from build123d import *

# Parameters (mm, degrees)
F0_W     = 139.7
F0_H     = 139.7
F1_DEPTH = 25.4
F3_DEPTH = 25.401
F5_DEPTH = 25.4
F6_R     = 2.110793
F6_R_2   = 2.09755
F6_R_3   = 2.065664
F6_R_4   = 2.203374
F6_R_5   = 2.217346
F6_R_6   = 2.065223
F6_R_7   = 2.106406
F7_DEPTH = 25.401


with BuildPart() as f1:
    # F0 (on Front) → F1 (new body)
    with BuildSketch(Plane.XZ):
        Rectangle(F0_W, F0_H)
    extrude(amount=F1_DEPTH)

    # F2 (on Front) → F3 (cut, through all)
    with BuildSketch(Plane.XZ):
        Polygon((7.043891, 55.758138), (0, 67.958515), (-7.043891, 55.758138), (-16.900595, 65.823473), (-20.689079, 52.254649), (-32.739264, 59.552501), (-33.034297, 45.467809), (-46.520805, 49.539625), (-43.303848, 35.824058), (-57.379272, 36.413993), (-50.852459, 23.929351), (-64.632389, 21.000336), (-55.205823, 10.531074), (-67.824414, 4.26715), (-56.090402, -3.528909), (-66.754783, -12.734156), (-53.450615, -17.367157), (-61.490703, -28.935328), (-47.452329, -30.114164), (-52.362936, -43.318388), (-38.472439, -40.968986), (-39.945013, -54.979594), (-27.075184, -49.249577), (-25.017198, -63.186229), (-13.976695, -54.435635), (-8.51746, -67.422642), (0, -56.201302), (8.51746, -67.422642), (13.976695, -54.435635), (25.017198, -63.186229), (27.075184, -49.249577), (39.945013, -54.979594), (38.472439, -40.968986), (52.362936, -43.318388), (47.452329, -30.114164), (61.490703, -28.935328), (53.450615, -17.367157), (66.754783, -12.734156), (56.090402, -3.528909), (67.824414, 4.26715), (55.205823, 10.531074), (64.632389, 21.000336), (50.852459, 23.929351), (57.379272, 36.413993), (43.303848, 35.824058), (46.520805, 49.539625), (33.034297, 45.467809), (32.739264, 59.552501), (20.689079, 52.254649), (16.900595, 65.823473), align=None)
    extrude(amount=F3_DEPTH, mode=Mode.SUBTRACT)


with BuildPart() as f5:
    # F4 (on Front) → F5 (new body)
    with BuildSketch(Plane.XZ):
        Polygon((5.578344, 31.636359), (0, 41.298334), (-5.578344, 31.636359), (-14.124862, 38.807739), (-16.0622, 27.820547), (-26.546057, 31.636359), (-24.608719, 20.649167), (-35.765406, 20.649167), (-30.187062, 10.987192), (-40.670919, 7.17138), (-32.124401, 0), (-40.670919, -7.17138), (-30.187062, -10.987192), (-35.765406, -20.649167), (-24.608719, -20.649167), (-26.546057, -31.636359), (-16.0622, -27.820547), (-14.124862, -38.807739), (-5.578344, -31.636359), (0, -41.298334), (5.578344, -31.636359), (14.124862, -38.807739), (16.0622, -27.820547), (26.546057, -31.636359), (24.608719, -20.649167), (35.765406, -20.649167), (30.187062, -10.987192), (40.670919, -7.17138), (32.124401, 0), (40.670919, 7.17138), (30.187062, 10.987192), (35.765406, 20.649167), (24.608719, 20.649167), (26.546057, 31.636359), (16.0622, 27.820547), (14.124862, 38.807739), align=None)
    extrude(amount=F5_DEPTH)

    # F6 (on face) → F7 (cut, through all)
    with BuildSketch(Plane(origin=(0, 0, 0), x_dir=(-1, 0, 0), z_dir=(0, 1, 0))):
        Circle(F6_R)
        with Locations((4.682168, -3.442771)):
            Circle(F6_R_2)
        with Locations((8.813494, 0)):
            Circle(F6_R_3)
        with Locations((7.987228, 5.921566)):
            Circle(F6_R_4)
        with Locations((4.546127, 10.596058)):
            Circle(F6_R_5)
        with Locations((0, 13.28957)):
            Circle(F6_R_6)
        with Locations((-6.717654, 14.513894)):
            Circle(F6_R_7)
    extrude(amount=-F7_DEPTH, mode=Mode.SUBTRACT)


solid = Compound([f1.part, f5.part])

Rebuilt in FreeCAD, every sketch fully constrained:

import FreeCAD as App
import Part
import Sketcher
Q = App.Units.Quantity


def add_polygon(sketch, points):
    """Adds a closed chain of lines whose ends are joined by coincident constraints."""
    first, n = sketch.GeometryCount, len(points)
    for a, b in zip(points, points[1:] + points[:1]):
        sketch.addGeometry(Part.LineSegment(App.Vector(*a, 0), App.Vector(*b, 0)), False)
    for i in range(n):
        sketch.addConstraint(Sketcher.Constraint("Coincident", first + i, 2, first + (i + 1) % n, 1))

doc = App.newDocument("Part")
params = doc.addObject("Spreadsheet::Sheet", "Params")
for row, (alias, value) in enumerate([
    ("sketch1_width", "5.5 in"),
    ("pad1_length", "1 in"),
    ("pad2_length", "1 in"),
], start=1):
    params.set(f"A{row}", alias)
    params.set(f"B{row}", "=" + value)
    params.setAlias(f"B{row}", alias)

body = doc.addObject("PartDesign::Body", "Body")

sketch1 = body.newObject("Sketcher::SketchObject", "Sketch")
sketch1.AttachmentSupport = (doc.getObject("XZ_Plane"), [""])
sketch1.MapMode = "FlatFace"
add_polygon(sketch1, [(-70, 70), (-70, -70), (70, -70), (70, 70)])
sketch1.addConstraint(Sketcher.Constraint("Vertical", 0))
sketch1.addConstraint(Sketcher.Constraint("Horizontal", 1))
sketch1.addConstraint(Sketcher.Constraint("Vertical", 2))
sketch1.addConstraint(Sketcher.Constraint("Horizontal", 3))
sketch1.addConstraint(Sketcher.Constraint("Symmetric", 0, 2, 2, 2, -1, 1))
sketch1.addConstraint(Sketcher.Constraint("Equal", 3, 0))
sketch1.addConstraint(Sketcher.Constraint("DistanceX", 1, 1, 1, 2, Q("5.5 in")))
sketch1.setExpression("Constraints[10]", "Params.sketch1_width")
pad1 = body.newObject("PartDesign::Pad", "Pad")
pad1.Profile = sketch1
pad1.setExpression("Length", "Params.pad1_length")

sketch2 = body.newObject("Sketcher::SketchObject", "Sketch001")
sketch2.AttachmentSupport = (doc.getObject("XZ_Plane"), [""])
sketch2.MapMode = "FlatFace"
add_polygon(sketch2, [(7, 56), (0, 68), (-7, 56), (-17, 66), (-21, 52), (-33, 60), (-33, 45), (-47, 50), (-43, 36), (-57, 36), (-51, 24), (-65, 21), (-55, 11), (-68, 4), (-56, -4), (-67, -13), (-53, -17), (-61, -29), (-47, -30), (-52, -43), (-38, -41), (-40, -55), (-27, -49), (-25, -63), (-14, -54), (-9, -67), (0, -56), (9, -67), (14, -54), (25, -63), (27, -49), (40, -55), (38, -41), (52, -43), (47, -30), (61, -29), (53, -17), (67, -13), (56, -4), (68, 4), (55, 11), (65, 21), (51, 24), (57, 36), (43, 36), (47, 50), (33, 45), (33, 60), (21, 52), (17, 66)])
sketch2.addConstraint(Sketcher.Constraint("Symmetric", 24, 2, 26, 2, -2))
sketch2.addConstraint(Sketcher.Constraint("Symmetric", 23, 2, 27, 2, -2))
sketch2.addConstraint(Sketcher.Constraint("Symmetric", 22, 2, 28, 2, -2))
sketch2.addConstraint(Sketcher.Constraint("Symmetric", 21, 2, 29, 2, -2))
sketch2.addConstraint(Sketcher.Constraint("Symmetric", 20, 2, 30, 2, -2))
sketch2.addConstraint(Sketcher.Constraint("Symmetric", 19, 2, 31, 2, -2))
sketch2.addConstraint(Sketcher.Constraint("Symmetric", 18, 2, 32, 2, -2))
sketch2.addConstraint(Sketcher.Constraint("Symmetric", 17, 2, 33, 2, -2))
sketch2.addConstraint(Sketcher.Constraint("Symmetric", 16, 2, 34, 2, -2))
sketch2.addConstraint(Sketcher.Constraint("Symmetric", 15, 2, 35, 2, -2))
sketch2.addConstraint(Sketcher.Constraint("Symmetric", 14, 2, 36, 2, -2))
sketch2.addConstraint(Sketcher.Constraint("Symmetric", 13, 2, 37, 2, -2))
sketch2.addConstraint(Sketcher.Constraint("Symmetric", 12, 2, 38, 2, -2))
sketch2.addConstraint(Sketcher.Constraint("Symmetric", 11, 2, 39, 2, -2))
sketch2.addConstraint(Sketcher.Constraint("Symmetric", 10, 2, 40, 2, -2))
sketch2.addConstraint(Sketcher.Constraint("Symmetric", 9, 2, 41, 2, -2))
sketch2.addConstraint(Sketcher.Constraint("Symmetric", 8, 2, 42, 2, -2))
sketch2.addConstraint(Sketcher.Constraint("Symmetric", 7, 2, 43, 2, -2))
sketch2.addConstraint(Sketcher.Constraint("Symmetric", 6, 2, 44, 2, -2))
sketch2.addConstraint(Sketcher.Constraint("Symmetric", 5, 2, 45, 2, -2))
sketch2.addConstraint(Sketcher.Constraint("Symmetric", 4, 2, 46, 2, -2))
sketch2.addConstraint(Sketcher.Constraint("Symmetric", 3, 2, 47, 2, -2))
sketch2.addConstraint(Sketcher.Constraint("Symmetric", 2, 2, 48, 2, -2))
sketch2.addConstraint(Sketcher.Constraint("Symmetric", 1, 2, 49, 2, -2))
sketch2.addConstraint(Sketcher.Constraint("PointOnObject", 0, 2, -2))
sketch2.addConstraint(Sketcher.Constraint("PointOnObject", 25, 2, -2))
sketch2.addConstraint(Sketcher.Constraint("Equal", 1, 2))
sketch2.addConstraint(Sketcher.Constraint("Equal", 2, 3))
sketch2.addConstraint(Sketcher.Constraint("Equal", 3, 4))
sketch2.addConstraint(Sketcher.Constraint("Equal", 4, 5))
sketch2.addConstraint(Sketcher.Constraint("Equal", 5, 6))
sketch2.addConstraint(Sketcher.Constraint("Equal", 6, 7))
sketch2.addConstraint(Sketcher.Constraint("Equal", 7, 8))
sketch2.addConstraint(Sketcher.Constraint("Equal", 8, 9))
sketch2.addConstraint(Sketcher.Constraint("Equal", 9, 10))
sketch2.addConstraint(Sketcher.Constraint("Equal", 10, 11))
sketch2.addConstraint(Sketcher.Constraint("Equal", 11, 12))
sketch2.addConstraint(Sketcher.Constraint("Equal", 12, 13))
sketch2.addConstraint(Sketcher.Constraint("Equal", 13, 14))
sketch2.addConstraint(Sketcher.Constraint("Equal", 14, 15))
sketch2.addConstraint(Sketcher.Constraint("Equal", 15, 16))
sketch2.addConstraint(Sketcher.Constraint("Equal", 16, 17))
sketch2.addConstraint(Sketcher.Constraint("Equal", 17, 18))
sketch2.addConstraint(Sketcher.Constraint("Equal", 18, 19))
sketch2.addConstraint(Sketcher.Constraint("Equal", 19, 20))
sketch2.addConstraint(Sketcher.Constraint("Equal", 20, 21))
sketch2.addConstraint(Sketcher.Constraint("Equal", 21, 22))
sketch2.addConstraint(Sketcher.Constraint("Equal", 22, 23))
sketch2.addConstraint(Sketcher.Constraint("Equal", 23, 24))
sketch2.addConstraint(Sketcher.Constraint("Equal", 24, 25))
sketch2.addConstraint(Sketcher.Constraint("Angle", 0, Q("120 deg")))
sketch2.addConstraint(Sketcher.Constraint("Angle", 10, Q("-167.999998 deg")))
sketch2.addConstraint(Sketcher.Constraint("Angle", 11, Q("-48 deg")))
sketch2.addConstraint(Sketcher.Constraint("Angle", 20, Q("-95.999999 deg")))
sketch2.addConstraint(Sketcher.Constraint("Angle", 21, Q("24 deg")))
sketch2.addConstraint(Sketcher.Constraint("Angle", 2, Q("134.399999 deg")))
sketch2.addConstraint(Sketcher.Constraint("Angle", 3, Q("-105.600001 deg")))
sketch2.addConstraint(Sketcher.Constraint("Angle", 4, Q("148.799998 deg")))
sketch2.addConstraint(Sketcher.Constraint("Angle", 5, Q("-91.200003 deg")))
sketch2.addConstraint(Sketcher.Constraint("Angle", 6, Q("163.200003 deg")))
sketch2.addConstraint(Sketcher.Constraint("Angle", 7, Q("-76.800001 deg")))
sketch2.addConstraint(Sketcher.Constraint("Angle", 8, Q("177.6 deg")))
sketch2.addConstraint(Sketcher.Constraint("Angle", 9, Q("-62.4 deg")))
sketch2.addConstraint(Sketcher.Constraint("Angle", 12, Q("-153.599996 deg")))
sketch2.addConstraint(Sketcher.Constraint("Angle", 13, Q("-33.6 deg")))
sketch2.addConstraint(Sketcher.Constraint("Angle", 14, Q("-139.199999 deg")))
sketch2.addConstraint(Sketcher.Constraint("Angle", 15, Q("-19.199998 deg")))
sketch2.addConstraint(Sketcher.Constraint("Angle", 16, Q("-124.799999 deg")))
sketch2.addConstraint(Sketcher.Constraint("Angle", 17, Q("-4.800003 deg")))
sketch2.addConstraint(Sketcher.Constraint("Angle", 18, Q("-110.4 deg")))
sketch2.addConstraint(Sketcher.Constraint("Angle", 19, Q("9.600001 deg")))
sketch2.addConstraint(Sketcher.Constraint("Angle", 22, Q("-81.599999 deg")))
sketch2.addConstraint(Sketcher.Constraint("Angle", 23, Q("38.399997 deg")))
sketch2.addConstraint(Sketcher.Constraint("Angle", 24, Q("-67.2 deg")))
sketch2.addConstraint(Sketcher.Constraint("DistanceY", -1, 1, 4, 2, Q("59.552501 mm")))
sketch2.addConstraint(Sketcher.Constraint("DistanceX", 13, 2, -1, 1, Q("56.090402 mm")))
pocket1 = body.newObject("PartDesign::Pocket", "Pocket")
pocket1.Profile = sketch2
pocket1.Type = "ThroughAll"
pocket1.Reversed = True
body2 = doc.addObject("PartDesign::Body", "Body001")

sketch3 = body2.newObject("Sketcher::SketchObject", "Sketch002")
sketch3.AttachmentSupport = (doc.getObject("XZ_Plane001"), [""])
sketch3.MapMode = "FlatFace"
add_polygon(sketch3, [(6, 32), (0, 41), (-6, 32), (-14, 39), (-16, 28), (-27, 32), (-25, 21), (-36, 21), (-30, 11), (-41, 7), (-32, 0), (-41, -7), (-30, -11), (-36, -21), (-25, -21), (-27, -32), (-16, -28), (-14, -39), (-6, -32), (0, -41), (6, -32), (14, -39), (16, -28), (27, -32), (25, -21), (36, -21), (30, -11), (41, -7), (32, 0), (41, 7), (30, 11), (36, 21), (25, 21), (27, 32), (16, 28), (14, 39)])
sketch3.addConstraint(Sketcher.Constraint("Horizontal", 6))
sketch3.addConstraint(Sketcher.Constraint("Horizontal", 13))
sketch3.addConstraint(Sketcher.Constraint("Horizontal", 24))
sketch3.addConstraint(Sketcher.Constraint("Horizontal", 31))
sketch3.addConstraint(Sketcher.Constraint("Symmetric", 0, 2, 18, 2, -1, 1))
sketch3.addConstraint(Sketcher.Constraint("Symmetric", 1, 2, 19, 2, -1, 1))
sketch3.addConstraint(Sketcher.Constraint("Symmetric", 2, 2, 20, 2, -1, 1))
sketch3.addConstraint(Sketcher.Constraint("Symmetric", 3, 2, 21, 2, -1, 1))
sketch3.addConstraint(Sketcher.Constraint("Symmetric", 4, 2, 22, 2, -1, 1))
sketch3.addConstraint(Sketcher.Constraint("Symmetric", 5, 2, 23, 2, -1, 1))
sketch3.addConstraint(Sketcher.Constraint("Symmetric", 7, 2, 25, 2, -1, 1))
sketch3.addConstraint(Sketcher.Constraint("Symmetric", 8, 2, 26, 2, -1, 1))
sketch3.addConstraint(Sketcher.Constraint("Symmetric", 9, 2, 27, 2, -1, 1))
sketch3.addConstraint(Sketcher.Constraint("Symmetric", 10, 2, 28, 2, -1, 1))
sketch3.addConstraint(Sketcher.Constraint("Symmetric", 11, 2, 29, 2, -1, 1))
sketch3.addConstraint(Sketcher.Constraint("Symmetric", 12, 2, 30, 2, -1, 1))
sketch3.addConstraint(Sketcher.Constraint("Symmetric", 14, 2, 32, 2, -1, 1))
sketch3.addConstraint(Sketcher.Constraint("Symmetric", 15, 2, 33, 2, -1, 1))
sketch3.addConstraint(Sketcher.Constraint("Symmetric", 16, 2, 34, 2, -1, 1))
sketch3.addConstraint(Sketcher.Constraint("Symmetric", 17, 2, 35, 2, -1, 1))
sketch3.addConstraint(Sketcher.Constraint("Symmetric", 17, 2, 19, 2, -2))
sketch3.addConstraint(Sketcher.Constraint("Symmetric", 16, 2, 20, 2, -2))
sketch3.addConstraint(Sketcher.Constraint("Symmetric", 15, 2, 21, 2, -2))
sketch3.addConstraint(Sketcher.Constraint("Symmetric", 14, 2, 22, 2, -2))
sketch3.addConstraint(Sketcher.Constraint("Symmetric", 13, 2, 23, 2, -2))
sketch3.addConstraint(Sketcher.Constraint("Symmetric", 11, 2, 25, 2, -2))
sketch3.addConstraint(Sketcher.Constraint("Symmetric", 10, 2, 26, 2, -2))
sketch3.addConstraint(Sketcher.Constraint("PointOnObject", 0, 2, -2))
sketch3.addConstraint(Sketcher.Constraint("PointOnObject", 9, 2, -1))
sketch3.addConstraint(Sketcher.Constraint("Parallel", 0, 7))
sketch3.addConstraint(Sketcher.Constraint("Parallel", 2, 9))
sketch3.addConstraint(Sketcher.Constraint("Parallel", 4, 11))
sketch3.addConstraint(Sketcher.Constraint("Parallel", 1, 12))
sketch3.addConstraint(Sketcher.Constraint("Parallel", 3, 14))
sketch3.addConstraint(Sketcher.Constraint("Parallel", 18, 25))
sketch3.addConstraint(Sketcher.Constraint("Parallel", 21, 32))
sketch3.addConstraint(Sketcher.Constraint("Horizontal", 1, 2, 4, 2))
sketch3.addConstraint(Sketcher.Constraint("Equal", 1, 2))
sketch3.addConstraint(Sketcher.Constraint("Equal", 2, 3))
sketch3.addConstraint(Sketcher.Constraint("Equal", 3, 4))
sketch3.addConstraint(Sketcher.Constraint("Equal", 4, 5))
sketch3.addConstraint(Sketcher.Constraint("Equal", 5, 7))
sketch3.addConstraint(Sketcher.Constraint("Equal", 7, 8))
sketch3.addConstraint(Sketcher.Constraint("Equal", 8, 9))
sketch3.addConstraint(Sketcher.Constraint("Angle", 0, Q("120.000001 deg")))
sketch3.addConstraint(Sketcher.Constraint("Angle", 2, Q("140 deg")))
sketch3.addConstraint(Sketcher.Constraint("Angle", 3, Q("-99.999998 deg")))
sketch3.addConstraint(Sketcher.Constraint("DistanceX", 3, 2, -1, 1, Q("16.0622 mm")))
sketch3.addConstraint(Sketcher.Constraint("DistanceX", 9, 2, -1, 1, Q("32.124401 mm")))
pad2 = body2.newObject("PartDesign::Pad", "Pad001")
pad2.Profile = sketch3
pad2.setExpression("Length", "Params.pad2_length")

sketch4 = body2.newObject("Sketcher::SketchObject", "Sketch003")
sketch4.AttachmentSupport = (doc.getObject("XZ_Plane001"), [""])
sketch4.MapMode = "FlatFace"
sketch4.addGeometry(Part.Circle(App.Vector(0, 0, 0), App.Vector(0, 0, 1), 2.1), False)
sketch4.addGeometry(Part.Circle(App.Vector(-4.7, -3.4, 0), App.Vector(0, 0, 1), 2.1), False)
sketch4.addGeometry(Part.Circle(App.Vector(-8.8, 0, 0), App.Vector(0, 0, 1), 2.1), False)
sketch4.addGeometry(Part.Circle(App.Vector(-8, 5.9, 0), App.Vector(0, 0, 1), 2.2), False)
sketch4.addGeometry(Part.Circle(App.Vector(-4.5, 10.6, 0), App.Vector(0, 0, 1), 2.2), False)
sketch4.addGeometry(Part.Circle(App.Vector(0, 13.3, 0), App.Vector(0, 0, 1), 2.1), False)
sketch4.addGeometry(Part.Circle(App.Vector(6.7, 14.5, 0), App.Vector(0, 0, 1), 2.1), False)
sketch4.addConstraint(Sketcher.Constraint("Coincident", 0, 3, -1, 1))
sketch4.addConstraint(Sketcher.Constraint("PointOnObject", 2, 3, -1))
sketch4.addConstraint(Sketcher.Constraint("PointOnObject", 5, 3, -2))
sketch4.addConstraint(Sketcher.Constraint("Diameter", 1, Q("4.1951 mm")))
sketch4.addConstraint(Sketcher.Constraint("Diameter", 3, Q("4.406748 mm")))
sketch4.addConstraint(Sketcher.Constraint("Diameter", 6, Q("4.212812 mm")))
sketch4.addConstraint(Sketcher.Constraint("Diameter", 0, Q("4.221586 mm")))
sketch4.addConstraint(Sketcher.Constraint("Diameter", 2, Q("4.131328 mm")))
sketch4.addConstraint(Sketcher.Constraint("Diameter", 4, Q("4.434692 mm")))
sketch4.addConstraint(Sketcher.Constraint("Diameter", 5, Q("4.130446 mm")))
sketch4.addConstraint(Sketcher.Constraint("DistanceX", 3, 3, 4, 3, Q("3.441101 mm")))
sketch4.addConstraint(Sketcher.Constraint("DistanceY", 1, 3, -1, 1, Q("3.442771 mm")))
sketch4.addConstraint(Sketcher.Constraint("DistanceY", -1, 1, 5, 3, Q("13.28957 mm")))
sketch4.addConstraint(Sketcher.Constraint("DistanceX", 3, 3, 1, 3, Q("3.30506 mm")))
sketch4.addConstraint(Sketcher.Constraint("DistanceY", 3, 3, 4, 3, Q("4.674492 mm")))
sketch4.addConstraint(Sketcher.Constraint("DistanceY", 1, 3, 4, 3, Q("14.038829 mm")))
sketch4.addConstraint(Sketcher.Constraint("DistanceX", 4, 3, 6, 3, Q("11.263781 mm")))
sketch4.addConstraint(Sketcher.Constraint("DistanceX", 1, 3, -1, 1, Q("4.682168 mm")))
sketch4.addConstraint(Sketcher.Constraint("DistanceX", 2, 3, -1, 1, Q("8.813494 mm")))
sketch4.addConstraint(Sketcher.Constraint("DistanceY", -1, 1, 6, 3, Q("14.513894 mm")))
pocket2 = body2.newObject("PartDesign::Pocket", "Pocket001")
pocket2.Profile = sketch4
pocket2.Type = "ThroughAll"
pocket2.Reversed = True

doc.recompute()
